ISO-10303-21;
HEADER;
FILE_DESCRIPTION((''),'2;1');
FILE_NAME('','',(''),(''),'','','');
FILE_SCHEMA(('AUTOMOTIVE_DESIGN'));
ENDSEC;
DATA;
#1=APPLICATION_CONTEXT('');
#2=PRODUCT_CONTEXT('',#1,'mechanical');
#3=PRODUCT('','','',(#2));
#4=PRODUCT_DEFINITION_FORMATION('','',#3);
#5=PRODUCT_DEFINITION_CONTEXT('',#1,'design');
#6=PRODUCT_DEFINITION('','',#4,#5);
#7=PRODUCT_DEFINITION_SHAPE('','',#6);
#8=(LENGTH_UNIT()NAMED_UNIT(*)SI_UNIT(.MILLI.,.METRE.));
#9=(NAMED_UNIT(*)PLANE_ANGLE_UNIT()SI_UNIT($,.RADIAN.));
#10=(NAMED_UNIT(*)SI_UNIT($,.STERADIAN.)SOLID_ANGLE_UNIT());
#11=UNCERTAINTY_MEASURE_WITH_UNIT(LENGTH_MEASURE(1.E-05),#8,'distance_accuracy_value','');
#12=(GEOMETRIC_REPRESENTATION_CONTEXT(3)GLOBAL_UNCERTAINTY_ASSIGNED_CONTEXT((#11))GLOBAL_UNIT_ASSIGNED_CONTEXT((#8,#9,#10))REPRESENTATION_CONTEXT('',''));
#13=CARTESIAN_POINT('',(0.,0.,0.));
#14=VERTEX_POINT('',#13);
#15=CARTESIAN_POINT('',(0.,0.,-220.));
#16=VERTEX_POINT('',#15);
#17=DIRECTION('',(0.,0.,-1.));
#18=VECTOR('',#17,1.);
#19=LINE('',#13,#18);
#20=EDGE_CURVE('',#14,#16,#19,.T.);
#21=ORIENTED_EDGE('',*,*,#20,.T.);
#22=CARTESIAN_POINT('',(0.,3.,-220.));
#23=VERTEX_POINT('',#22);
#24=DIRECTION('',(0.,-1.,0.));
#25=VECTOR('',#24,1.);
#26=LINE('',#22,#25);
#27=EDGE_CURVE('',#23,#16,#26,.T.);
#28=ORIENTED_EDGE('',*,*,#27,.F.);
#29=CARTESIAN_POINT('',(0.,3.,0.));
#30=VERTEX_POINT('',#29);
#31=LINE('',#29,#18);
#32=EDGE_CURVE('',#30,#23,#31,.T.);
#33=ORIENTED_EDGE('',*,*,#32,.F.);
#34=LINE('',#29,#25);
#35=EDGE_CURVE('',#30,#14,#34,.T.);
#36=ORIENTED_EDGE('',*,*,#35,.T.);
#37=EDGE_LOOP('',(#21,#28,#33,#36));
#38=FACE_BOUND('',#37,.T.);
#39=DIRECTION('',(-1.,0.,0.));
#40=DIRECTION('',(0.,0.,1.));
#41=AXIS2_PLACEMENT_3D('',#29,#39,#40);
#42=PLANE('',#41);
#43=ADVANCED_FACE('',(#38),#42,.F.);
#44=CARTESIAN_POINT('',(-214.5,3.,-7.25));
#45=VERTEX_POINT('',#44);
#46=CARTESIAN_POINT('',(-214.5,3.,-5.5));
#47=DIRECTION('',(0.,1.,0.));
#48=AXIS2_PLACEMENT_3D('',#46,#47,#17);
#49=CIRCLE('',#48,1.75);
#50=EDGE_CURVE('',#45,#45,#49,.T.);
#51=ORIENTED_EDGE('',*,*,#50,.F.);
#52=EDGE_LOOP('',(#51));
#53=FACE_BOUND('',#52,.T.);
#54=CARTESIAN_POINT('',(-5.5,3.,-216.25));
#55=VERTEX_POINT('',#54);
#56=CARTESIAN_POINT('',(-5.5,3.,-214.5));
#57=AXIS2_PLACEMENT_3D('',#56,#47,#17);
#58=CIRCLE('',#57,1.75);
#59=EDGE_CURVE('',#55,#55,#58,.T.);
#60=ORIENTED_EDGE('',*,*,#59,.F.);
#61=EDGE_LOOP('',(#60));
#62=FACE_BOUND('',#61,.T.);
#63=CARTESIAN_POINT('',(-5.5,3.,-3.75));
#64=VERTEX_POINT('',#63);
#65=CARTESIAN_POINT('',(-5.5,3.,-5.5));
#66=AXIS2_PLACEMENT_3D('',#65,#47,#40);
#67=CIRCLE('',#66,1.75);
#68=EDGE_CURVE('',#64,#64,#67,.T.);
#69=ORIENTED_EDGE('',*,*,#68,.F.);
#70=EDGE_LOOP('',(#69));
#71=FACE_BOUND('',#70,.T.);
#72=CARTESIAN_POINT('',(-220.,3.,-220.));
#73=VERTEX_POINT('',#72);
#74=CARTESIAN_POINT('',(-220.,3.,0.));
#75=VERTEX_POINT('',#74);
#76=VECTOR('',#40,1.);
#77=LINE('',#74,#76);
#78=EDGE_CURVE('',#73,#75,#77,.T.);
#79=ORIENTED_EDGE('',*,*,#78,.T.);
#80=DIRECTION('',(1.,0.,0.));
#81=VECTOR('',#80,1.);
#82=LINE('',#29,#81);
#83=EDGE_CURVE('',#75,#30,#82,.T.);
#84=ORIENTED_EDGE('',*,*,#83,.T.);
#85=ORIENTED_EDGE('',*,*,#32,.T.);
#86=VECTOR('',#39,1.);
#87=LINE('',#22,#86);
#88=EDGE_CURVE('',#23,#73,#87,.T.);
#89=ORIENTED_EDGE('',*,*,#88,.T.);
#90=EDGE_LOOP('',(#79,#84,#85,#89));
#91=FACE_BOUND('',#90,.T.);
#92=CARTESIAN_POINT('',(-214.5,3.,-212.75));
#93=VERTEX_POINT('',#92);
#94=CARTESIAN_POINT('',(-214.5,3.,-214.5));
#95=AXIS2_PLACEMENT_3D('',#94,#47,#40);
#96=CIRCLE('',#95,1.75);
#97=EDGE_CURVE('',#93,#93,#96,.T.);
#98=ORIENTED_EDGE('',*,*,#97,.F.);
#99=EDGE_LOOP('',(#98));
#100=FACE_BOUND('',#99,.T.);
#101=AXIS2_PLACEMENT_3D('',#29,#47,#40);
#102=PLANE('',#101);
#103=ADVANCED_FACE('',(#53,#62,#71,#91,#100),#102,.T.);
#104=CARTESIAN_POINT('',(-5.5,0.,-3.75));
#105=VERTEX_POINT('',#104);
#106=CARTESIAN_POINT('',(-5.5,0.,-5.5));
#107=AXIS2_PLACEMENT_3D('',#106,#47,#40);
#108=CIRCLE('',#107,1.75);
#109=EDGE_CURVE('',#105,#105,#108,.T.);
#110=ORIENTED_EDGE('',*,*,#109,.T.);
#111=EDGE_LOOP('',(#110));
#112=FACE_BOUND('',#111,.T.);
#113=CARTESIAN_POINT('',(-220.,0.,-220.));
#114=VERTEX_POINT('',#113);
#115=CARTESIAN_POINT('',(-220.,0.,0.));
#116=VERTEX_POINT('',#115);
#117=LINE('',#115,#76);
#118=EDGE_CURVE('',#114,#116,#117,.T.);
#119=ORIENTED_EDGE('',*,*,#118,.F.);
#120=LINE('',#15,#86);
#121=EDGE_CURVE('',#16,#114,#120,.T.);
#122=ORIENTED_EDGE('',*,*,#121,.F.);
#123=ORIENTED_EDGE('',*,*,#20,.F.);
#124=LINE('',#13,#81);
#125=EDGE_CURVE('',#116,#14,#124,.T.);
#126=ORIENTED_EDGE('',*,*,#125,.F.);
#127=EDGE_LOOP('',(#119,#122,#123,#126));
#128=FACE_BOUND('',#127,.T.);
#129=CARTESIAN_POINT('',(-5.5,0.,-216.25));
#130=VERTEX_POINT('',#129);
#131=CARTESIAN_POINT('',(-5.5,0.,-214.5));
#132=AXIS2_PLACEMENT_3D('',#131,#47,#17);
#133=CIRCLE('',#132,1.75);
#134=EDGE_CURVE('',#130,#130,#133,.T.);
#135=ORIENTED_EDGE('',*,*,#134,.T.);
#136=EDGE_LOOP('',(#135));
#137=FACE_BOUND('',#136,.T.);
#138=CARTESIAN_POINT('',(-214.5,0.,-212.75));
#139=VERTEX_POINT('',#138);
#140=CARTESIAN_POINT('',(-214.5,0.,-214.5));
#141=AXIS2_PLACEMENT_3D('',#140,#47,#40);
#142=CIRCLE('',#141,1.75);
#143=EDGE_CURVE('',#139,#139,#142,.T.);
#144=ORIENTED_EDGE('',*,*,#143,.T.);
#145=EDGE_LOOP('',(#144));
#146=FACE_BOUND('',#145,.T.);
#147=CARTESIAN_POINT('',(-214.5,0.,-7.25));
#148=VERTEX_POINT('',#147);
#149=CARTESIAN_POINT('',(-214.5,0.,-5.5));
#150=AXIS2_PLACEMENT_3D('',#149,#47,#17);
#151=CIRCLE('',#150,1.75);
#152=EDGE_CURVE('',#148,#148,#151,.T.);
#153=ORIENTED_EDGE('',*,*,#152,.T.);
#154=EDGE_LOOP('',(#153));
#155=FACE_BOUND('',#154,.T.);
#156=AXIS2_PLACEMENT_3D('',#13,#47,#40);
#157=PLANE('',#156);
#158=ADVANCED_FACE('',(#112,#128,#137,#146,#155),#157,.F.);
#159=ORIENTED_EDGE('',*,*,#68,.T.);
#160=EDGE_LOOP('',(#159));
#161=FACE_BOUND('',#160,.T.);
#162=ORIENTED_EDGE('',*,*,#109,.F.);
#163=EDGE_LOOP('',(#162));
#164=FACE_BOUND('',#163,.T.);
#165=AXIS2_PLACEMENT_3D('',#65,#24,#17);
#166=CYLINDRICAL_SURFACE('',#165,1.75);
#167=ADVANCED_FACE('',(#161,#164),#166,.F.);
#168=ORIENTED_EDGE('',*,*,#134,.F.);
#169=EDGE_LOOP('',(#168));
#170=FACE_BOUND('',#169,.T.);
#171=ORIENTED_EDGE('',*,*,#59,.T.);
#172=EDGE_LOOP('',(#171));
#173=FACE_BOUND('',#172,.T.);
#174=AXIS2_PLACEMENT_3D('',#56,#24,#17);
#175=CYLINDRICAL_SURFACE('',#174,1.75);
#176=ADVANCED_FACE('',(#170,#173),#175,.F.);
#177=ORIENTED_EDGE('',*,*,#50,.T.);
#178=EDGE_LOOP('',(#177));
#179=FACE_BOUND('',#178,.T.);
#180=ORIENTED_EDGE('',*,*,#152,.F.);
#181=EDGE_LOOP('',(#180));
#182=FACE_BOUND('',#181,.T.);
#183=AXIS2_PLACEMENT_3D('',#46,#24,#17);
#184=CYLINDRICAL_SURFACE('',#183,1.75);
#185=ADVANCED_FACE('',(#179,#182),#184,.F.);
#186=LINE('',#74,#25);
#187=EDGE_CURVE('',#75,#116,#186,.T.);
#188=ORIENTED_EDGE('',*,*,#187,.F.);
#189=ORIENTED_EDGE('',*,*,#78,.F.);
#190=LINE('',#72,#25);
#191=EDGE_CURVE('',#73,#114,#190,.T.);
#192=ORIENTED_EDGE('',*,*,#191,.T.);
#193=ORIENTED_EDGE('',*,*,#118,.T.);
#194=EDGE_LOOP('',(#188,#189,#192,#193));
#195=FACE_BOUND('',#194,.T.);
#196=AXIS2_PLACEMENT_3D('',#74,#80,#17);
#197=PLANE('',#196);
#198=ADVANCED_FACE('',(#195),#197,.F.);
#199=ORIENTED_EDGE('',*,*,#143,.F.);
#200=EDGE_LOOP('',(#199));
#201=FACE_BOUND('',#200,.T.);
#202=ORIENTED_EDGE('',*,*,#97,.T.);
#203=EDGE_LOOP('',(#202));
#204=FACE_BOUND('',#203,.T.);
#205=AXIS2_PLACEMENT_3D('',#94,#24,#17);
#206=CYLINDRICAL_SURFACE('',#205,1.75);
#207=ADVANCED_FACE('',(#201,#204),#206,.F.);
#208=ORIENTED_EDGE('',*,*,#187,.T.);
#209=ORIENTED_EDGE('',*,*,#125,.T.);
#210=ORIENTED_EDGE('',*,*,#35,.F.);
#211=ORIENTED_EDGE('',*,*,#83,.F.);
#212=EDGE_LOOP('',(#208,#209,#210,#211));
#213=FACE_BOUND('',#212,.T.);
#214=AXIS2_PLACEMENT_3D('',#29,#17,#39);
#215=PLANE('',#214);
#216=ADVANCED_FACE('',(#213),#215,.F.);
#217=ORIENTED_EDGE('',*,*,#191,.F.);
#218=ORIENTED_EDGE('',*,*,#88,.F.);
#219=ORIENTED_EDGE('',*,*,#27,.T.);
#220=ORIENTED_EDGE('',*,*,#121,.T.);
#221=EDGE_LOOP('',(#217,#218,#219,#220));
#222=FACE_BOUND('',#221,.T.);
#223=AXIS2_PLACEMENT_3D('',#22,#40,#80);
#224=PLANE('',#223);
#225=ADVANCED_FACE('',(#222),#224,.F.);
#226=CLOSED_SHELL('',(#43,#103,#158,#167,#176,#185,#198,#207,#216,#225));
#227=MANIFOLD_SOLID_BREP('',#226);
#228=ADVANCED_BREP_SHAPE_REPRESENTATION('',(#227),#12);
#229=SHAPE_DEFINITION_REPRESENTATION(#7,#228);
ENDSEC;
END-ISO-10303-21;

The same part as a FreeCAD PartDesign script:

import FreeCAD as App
import Part
import Sketcher

V = App.Vector
Q = App.Units.Quantity


def add_polygon(sketch, points):
    """Adds a closed chain of lines whose ends are joined by coincident constraints."""
    first, n = sketch.GeometryCount, len(points)
    for a, b in zip(points, points[1:] + points[:1]):
        sketch.addGeometry(Part.LineSegment(App.Vector(*a, 0), App.Vector(*b, 0)), False)
    for i in range(n):
        sketch.addConstraint(Sketcher.Constraint("Coincident", first + i, 2, first + (i + 1) % n, 1))

doc = App.newDocument("Part")
body = doc.addObject("PartDesign::Body", "Body")

sketch1 = body.newObject("Sketcher::SketchObject", "Sketch")
sketch1.AttachmentSupport = (doc.getObject("XZ_Plane"), [""])
sketch1.MapMode = "FlatFace"
add_polygon(sketch1, [(-220, -220), (-220, 0), (0, 0), (0, -220)])
sketch1.addGeometry(Part.Circle(V(-214.5, -5.5, 0), V(0, 0, 1), 1.75), False)
sketch1.addGeometry(Part.Circle(V(-5.5, -5.5, 0), V(0, 0, 1), 1.75), False)
sketch1.addGeometry(Part.Circle(V(-214.5, -214.5, 0), V(0, 0, 1), 1.75), False)
sketch1.addGeometry(Part.Circle(V(-5.5, -214.5, 0), V(0, 0, 1), 1.75), False)
sketch1.addConstraint(Sketcher.Constraint("Vertical", 0))
sketch1.addConstraint(Sketcher.Constraint("Horizontal", 1))
sketch1.addConstraint(Sketcher.Constraint("Vertical", 2))
sketch1.addConstraint(Sketcher.Constraint("Horizontal", 3))
sketch1.addConstraint(Sketcher.Constraint("Coincident", 1, 2, -1, 1))
sketch1.addConstraint(Sketcher.Constraint("Equal", 4, 5))
sketch1.addConstraint(Sketcher.Constraint("Equal", 5, 6))
sketch1.addConstraint(Sketcher.Constraint("Equal", 6, 7))
sketch1.addConstraint(Sketcher.Constraint("Horizontal", 4, 3, 5, 3))
sketch1.addConstraint(Sketcher.Constraint("Horizontal", 6, 3, 7, 3))
sketch1.addConstraint(Sketcher.Constraint("Vertical", 4, 3, 6, 3))
sketch1.addConstraint(Sketcher.Constraint("Vertical", 5, 3, 7, 3))
sketch1.addConstraint(Sketcher.Constraint("Equal", 3, 0))
sketch1.addConstraint(Sketcher.Constraint("Diameter", 4, Q("3.5 mm")))
sketch1.addConstraint(Sketcher.Constraint("DistanceX", 1, 1, 1, 2, Q("220 mm")))
sketch1.addConstraint(Sketcher.Constraint("DistanceX", 4, 3, 5, 3, Q("209 mm")))
sketch1.addConstraint(Sketcher.Constraint("DistanceY", 6, 3, 4, 3, Q("209 mm")))
sketch1.addConstraint(Sketcher.Constraint("DistanceX", 4, 3, -1, 1, Q("214.5 mm")))
sketch1.addConstraint(Sketcher.Constraint("DistanceY", 4, 3, -1, 1, Q("5.5 mm")))
pad1 = body.newObject("PartDesign::Pad", "Pad")
pad1.Profile = sketch1
pad1.Length = 3
pad1.Reversed = True

doc.recompute()
